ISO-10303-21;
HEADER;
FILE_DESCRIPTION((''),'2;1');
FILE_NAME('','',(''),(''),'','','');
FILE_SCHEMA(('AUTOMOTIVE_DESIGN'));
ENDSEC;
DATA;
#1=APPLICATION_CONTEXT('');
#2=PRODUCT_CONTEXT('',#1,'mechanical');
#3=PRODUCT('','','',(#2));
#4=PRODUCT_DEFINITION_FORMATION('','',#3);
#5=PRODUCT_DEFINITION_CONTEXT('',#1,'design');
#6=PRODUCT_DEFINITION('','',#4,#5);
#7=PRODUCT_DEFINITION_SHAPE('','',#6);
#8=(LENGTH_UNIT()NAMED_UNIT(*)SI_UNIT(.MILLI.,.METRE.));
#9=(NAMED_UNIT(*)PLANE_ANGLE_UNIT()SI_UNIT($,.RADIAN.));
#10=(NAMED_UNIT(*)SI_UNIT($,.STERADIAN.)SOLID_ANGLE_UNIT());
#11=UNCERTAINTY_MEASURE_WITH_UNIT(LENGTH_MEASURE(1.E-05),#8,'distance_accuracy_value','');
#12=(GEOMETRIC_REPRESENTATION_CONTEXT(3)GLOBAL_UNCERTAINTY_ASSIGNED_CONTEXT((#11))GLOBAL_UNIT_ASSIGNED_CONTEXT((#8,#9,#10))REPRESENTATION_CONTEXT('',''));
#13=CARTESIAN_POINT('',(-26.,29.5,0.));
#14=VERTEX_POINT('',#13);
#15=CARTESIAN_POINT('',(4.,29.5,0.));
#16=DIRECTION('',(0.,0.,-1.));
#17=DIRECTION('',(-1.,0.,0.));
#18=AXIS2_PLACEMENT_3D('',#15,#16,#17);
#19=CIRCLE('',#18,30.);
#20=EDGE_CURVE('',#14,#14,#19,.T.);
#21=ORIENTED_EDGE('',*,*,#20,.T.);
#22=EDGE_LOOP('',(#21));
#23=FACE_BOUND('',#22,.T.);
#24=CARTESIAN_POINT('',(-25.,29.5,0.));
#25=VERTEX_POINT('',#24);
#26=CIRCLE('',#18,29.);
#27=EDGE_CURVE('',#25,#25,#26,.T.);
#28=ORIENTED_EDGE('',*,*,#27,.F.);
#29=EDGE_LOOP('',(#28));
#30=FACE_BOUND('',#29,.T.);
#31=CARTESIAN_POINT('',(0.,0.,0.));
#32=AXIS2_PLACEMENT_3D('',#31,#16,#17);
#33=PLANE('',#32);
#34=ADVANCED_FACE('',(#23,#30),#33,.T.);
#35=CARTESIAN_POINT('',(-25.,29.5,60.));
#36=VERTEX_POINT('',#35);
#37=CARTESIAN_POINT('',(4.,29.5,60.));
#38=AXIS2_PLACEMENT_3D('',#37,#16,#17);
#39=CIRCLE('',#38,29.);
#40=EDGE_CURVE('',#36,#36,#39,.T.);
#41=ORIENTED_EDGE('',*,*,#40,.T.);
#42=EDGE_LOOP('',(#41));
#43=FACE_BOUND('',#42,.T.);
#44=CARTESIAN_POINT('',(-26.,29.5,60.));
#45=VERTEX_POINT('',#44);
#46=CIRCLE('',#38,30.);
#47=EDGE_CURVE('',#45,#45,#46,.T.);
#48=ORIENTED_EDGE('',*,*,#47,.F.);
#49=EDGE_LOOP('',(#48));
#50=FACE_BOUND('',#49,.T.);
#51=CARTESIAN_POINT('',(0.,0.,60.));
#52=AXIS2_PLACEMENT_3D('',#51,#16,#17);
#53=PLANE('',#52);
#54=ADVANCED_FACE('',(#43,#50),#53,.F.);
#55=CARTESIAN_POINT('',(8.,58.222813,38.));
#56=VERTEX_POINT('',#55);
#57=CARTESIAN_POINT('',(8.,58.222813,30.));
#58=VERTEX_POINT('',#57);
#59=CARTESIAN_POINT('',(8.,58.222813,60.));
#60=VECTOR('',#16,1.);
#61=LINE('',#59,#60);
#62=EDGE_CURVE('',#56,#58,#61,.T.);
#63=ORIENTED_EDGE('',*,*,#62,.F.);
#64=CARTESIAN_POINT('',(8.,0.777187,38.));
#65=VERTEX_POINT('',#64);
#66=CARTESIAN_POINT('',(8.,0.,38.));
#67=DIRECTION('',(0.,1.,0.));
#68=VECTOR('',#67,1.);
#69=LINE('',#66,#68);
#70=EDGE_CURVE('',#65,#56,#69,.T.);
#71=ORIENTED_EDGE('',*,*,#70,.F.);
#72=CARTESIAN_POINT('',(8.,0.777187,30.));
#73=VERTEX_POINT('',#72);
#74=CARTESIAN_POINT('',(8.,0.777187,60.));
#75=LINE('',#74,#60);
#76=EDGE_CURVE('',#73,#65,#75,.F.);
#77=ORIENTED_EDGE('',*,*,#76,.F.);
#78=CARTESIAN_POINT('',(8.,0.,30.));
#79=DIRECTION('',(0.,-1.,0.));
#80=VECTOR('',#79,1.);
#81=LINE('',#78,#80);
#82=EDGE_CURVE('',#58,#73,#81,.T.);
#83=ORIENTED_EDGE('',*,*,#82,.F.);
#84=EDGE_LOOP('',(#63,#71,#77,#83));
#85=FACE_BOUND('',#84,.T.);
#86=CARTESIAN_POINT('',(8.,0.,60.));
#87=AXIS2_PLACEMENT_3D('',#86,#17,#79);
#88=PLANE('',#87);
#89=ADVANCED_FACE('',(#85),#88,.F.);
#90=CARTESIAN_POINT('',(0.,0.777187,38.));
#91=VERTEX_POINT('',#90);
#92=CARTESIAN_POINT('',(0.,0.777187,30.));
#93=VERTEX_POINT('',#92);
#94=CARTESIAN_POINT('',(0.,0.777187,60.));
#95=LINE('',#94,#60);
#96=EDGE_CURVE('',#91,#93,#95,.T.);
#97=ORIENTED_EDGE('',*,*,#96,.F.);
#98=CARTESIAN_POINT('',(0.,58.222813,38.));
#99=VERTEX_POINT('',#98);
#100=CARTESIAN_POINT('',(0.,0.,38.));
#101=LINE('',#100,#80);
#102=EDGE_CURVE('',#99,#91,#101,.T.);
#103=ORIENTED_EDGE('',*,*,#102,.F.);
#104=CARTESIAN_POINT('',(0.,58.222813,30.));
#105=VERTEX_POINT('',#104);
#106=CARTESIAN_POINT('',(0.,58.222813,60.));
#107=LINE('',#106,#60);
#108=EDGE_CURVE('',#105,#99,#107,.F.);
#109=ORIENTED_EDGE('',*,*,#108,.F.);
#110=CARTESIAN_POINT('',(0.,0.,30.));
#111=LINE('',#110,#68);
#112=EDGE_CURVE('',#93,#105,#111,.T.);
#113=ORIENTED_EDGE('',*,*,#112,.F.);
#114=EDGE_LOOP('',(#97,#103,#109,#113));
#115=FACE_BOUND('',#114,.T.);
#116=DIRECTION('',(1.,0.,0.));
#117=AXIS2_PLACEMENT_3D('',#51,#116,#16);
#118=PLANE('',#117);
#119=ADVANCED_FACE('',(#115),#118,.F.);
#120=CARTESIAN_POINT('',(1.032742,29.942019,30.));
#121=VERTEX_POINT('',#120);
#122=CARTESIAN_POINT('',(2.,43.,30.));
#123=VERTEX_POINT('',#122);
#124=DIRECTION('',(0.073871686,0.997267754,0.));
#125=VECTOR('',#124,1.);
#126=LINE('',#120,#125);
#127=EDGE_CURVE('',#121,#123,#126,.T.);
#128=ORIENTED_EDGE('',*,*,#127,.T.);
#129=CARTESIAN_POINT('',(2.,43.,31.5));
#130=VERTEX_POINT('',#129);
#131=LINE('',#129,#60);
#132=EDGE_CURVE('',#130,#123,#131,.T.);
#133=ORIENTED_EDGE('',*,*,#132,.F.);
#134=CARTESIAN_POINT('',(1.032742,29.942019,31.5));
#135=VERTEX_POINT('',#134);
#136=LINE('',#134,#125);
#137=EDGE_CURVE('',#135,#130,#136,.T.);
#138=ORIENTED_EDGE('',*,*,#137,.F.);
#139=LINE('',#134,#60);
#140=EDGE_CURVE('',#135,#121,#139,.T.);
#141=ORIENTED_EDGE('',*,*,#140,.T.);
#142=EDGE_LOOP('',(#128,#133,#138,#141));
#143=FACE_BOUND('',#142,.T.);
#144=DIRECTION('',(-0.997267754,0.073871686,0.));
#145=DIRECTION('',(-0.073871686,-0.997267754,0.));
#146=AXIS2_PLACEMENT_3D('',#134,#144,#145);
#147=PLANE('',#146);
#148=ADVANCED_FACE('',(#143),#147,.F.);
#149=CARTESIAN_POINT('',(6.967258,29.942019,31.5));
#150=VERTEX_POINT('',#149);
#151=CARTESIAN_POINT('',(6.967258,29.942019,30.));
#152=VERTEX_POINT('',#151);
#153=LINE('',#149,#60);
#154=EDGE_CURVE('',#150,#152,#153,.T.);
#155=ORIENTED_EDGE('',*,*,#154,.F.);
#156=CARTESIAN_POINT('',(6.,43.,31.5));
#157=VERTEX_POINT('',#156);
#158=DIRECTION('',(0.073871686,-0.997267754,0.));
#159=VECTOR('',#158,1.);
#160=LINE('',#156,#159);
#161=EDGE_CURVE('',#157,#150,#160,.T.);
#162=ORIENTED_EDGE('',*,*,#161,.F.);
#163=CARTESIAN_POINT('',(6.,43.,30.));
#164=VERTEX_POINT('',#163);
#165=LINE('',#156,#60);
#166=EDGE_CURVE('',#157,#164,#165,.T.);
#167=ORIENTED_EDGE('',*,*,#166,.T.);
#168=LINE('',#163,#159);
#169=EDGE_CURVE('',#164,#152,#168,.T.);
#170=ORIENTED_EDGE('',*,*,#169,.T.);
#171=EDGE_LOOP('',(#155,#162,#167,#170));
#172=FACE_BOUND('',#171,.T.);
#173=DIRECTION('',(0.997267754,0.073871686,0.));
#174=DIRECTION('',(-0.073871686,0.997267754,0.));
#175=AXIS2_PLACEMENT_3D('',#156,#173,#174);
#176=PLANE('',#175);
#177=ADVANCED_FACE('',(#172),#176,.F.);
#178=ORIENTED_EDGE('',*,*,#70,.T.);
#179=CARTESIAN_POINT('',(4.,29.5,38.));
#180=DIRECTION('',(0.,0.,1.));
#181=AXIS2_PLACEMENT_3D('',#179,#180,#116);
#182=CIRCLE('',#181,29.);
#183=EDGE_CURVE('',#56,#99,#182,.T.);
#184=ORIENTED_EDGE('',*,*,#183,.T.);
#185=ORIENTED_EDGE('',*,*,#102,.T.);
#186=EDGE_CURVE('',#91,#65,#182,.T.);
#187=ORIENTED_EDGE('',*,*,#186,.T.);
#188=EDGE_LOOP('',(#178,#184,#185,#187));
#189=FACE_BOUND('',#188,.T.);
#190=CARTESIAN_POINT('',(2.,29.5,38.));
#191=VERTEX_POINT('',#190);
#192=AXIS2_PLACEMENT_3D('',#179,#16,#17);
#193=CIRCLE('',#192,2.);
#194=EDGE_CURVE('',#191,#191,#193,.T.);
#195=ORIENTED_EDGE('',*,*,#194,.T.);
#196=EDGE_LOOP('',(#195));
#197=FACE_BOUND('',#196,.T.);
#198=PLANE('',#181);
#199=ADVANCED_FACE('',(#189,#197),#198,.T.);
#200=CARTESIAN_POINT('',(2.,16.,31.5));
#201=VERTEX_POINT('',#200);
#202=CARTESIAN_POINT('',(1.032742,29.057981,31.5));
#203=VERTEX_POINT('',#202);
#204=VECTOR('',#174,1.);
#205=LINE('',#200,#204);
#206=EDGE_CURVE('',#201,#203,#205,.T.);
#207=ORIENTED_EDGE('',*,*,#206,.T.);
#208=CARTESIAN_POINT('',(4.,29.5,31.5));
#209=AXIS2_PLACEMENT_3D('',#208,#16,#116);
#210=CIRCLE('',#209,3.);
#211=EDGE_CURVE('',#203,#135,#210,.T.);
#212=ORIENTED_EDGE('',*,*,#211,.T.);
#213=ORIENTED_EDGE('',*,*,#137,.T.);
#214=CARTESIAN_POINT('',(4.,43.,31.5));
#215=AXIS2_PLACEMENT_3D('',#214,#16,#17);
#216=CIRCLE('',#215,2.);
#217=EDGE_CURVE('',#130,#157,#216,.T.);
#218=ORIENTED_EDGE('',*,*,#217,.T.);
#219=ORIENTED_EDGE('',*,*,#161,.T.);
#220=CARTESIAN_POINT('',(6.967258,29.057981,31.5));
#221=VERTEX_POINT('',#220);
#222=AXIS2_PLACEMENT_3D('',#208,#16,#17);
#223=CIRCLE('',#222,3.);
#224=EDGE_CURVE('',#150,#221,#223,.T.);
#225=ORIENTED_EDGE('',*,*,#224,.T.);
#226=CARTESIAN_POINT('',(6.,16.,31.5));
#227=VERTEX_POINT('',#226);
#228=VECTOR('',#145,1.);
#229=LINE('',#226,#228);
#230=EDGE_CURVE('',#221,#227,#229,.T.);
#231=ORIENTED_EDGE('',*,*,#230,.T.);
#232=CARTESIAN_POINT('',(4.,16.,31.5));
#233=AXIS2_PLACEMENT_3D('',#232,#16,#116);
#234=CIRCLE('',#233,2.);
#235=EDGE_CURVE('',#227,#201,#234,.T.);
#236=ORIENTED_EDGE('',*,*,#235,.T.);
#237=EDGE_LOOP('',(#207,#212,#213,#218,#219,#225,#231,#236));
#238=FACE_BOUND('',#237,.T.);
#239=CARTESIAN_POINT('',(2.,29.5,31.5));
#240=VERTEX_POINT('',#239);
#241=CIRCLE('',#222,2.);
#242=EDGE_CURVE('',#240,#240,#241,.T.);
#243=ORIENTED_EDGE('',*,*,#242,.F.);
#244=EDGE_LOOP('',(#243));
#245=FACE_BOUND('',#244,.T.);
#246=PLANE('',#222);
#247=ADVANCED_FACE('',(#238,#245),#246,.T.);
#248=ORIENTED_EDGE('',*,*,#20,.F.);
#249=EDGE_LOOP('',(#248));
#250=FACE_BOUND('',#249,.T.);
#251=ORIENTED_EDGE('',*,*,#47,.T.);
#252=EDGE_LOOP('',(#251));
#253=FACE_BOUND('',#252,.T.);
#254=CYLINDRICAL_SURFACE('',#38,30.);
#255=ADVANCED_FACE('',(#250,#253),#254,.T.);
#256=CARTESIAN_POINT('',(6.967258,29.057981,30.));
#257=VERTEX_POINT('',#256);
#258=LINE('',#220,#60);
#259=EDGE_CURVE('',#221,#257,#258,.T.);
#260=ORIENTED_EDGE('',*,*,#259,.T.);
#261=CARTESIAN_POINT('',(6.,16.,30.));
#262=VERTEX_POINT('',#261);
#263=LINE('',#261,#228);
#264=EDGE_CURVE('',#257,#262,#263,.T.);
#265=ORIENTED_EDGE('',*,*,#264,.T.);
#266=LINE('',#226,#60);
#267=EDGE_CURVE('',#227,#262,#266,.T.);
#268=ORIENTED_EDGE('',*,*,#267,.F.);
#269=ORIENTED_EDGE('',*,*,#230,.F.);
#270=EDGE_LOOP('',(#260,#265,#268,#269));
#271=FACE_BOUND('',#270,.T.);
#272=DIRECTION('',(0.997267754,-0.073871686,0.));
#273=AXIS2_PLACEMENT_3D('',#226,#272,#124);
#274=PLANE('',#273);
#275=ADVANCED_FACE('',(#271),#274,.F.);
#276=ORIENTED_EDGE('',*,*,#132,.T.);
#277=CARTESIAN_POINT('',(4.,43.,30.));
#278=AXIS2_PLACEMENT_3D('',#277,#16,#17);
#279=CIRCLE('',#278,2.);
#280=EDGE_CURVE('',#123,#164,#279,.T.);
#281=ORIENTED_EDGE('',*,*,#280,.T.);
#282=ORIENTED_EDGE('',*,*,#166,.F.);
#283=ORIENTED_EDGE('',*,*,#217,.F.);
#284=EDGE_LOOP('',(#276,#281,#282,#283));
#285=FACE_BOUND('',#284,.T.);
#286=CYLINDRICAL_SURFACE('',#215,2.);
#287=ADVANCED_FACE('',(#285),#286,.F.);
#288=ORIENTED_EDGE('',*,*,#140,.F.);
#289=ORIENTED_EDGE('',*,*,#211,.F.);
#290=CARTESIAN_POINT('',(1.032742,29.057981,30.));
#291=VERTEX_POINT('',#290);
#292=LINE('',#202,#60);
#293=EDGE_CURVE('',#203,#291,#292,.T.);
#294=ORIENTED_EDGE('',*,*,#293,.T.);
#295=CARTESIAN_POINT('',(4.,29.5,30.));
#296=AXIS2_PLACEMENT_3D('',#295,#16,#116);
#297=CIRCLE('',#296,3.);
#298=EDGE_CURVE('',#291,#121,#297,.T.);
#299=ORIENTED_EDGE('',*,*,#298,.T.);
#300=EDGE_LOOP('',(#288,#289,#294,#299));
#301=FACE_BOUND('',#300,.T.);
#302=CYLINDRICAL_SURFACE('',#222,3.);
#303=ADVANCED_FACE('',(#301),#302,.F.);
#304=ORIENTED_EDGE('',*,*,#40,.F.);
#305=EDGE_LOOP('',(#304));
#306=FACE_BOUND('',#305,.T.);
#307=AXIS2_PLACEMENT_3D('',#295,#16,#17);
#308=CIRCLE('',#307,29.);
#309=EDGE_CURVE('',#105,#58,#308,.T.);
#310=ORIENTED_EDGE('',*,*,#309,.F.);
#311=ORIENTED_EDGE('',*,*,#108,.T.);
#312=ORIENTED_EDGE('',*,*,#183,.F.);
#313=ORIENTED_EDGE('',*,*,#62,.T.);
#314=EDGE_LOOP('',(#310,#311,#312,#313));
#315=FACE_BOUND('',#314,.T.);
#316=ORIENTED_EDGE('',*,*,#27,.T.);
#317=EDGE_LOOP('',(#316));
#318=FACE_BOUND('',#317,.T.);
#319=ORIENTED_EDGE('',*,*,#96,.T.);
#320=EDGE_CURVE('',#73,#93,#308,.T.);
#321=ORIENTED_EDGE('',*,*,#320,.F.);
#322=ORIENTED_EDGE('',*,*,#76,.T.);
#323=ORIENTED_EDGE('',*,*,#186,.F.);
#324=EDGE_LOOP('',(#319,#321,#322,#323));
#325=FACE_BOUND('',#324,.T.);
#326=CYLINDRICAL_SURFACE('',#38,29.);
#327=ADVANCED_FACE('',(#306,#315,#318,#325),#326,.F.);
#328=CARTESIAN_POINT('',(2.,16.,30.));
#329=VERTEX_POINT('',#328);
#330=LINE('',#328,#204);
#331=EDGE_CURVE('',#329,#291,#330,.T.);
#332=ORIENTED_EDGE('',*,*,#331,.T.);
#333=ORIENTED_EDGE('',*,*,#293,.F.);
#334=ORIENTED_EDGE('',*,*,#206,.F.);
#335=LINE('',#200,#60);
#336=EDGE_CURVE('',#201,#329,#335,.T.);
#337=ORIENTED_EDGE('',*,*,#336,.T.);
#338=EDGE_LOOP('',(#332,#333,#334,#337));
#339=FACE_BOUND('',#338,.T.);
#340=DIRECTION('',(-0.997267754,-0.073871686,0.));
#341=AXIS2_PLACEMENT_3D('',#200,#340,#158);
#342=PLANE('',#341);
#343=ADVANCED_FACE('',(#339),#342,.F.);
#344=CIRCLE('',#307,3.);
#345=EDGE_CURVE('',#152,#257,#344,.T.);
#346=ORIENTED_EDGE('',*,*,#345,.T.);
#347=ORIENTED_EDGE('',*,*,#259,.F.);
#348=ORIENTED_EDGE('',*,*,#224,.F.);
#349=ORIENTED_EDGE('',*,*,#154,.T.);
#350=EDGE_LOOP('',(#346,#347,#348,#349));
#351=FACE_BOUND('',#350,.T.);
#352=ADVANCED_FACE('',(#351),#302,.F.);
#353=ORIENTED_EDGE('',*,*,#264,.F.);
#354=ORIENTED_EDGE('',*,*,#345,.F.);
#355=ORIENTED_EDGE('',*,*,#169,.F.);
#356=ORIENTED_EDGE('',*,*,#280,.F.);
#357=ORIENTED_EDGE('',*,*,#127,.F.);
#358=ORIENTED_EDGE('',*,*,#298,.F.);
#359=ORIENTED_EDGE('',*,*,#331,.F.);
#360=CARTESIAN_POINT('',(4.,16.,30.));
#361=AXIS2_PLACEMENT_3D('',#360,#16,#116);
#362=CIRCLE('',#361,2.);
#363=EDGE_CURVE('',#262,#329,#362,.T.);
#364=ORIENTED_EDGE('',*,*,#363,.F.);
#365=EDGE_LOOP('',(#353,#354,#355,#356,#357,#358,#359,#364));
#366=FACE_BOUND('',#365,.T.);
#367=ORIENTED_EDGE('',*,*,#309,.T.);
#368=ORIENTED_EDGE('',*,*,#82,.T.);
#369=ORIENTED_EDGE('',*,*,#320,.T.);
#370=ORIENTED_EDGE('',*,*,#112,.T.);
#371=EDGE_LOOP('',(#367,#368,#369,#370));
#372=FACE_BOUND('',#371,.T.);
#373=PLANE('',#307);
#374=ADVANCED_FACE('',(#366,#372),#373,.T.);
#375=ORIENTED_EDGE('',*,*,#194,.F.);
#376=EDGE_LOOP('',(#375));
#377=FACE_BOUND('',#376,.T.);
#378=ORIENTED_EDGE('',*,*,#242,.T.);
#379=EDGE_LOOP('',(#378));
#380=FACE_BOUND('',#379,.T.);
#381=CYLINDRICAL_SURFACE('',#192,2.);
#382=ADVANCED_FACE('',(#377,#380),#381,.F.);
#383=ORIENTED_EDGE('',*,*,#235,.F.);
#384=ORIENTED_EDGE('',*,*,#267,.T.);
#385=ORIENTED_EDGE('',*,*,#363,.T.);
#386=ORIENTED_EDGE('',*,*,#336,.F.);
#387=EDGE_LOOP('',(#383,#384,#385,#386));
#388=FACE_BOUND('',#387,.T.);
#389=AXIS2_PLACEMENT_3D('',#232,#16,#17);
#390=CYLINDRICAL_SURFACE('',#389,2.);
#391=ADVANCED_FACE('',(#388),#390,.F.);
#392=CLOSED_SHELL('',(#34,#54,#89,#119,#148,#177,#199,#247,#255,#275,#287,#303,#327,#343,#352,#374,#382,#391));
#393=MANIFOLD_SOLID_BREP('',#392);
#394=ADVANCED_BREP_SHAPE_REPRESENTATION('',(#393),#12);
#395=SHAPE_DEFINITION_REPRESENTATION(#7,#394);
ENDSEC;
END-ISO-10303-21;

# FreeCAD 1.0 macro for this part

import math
import FreeCAD as App
import Part
import Sketcher
from FreeCAD import Vector


def add_polygon(sketch, points):
    """Adds a closed chain of lines whose ends are joined by coincident constraints."""
    first, n = sketch.GeometryCount, len(points)
    for a, b in zip(points, points[1:] + points[:1]):
        sketch.addGeometry(Part.LineSegment(App.Vector(*a, 0), App.Vector(*b, 0)), False)
    for i in range(n):
        sketch.addConstraint(Sketcher.Constraint("Coincident", first + i, 2, first + (i + 1) % n, 1))

doc = App.newDocument("Part")
body = doc.addObject("PartDesign::Body", "Body")

# Sketch on XY plane
sketch1 = body.newObject("Sketcher::SketchObject", "Sketch")
sketch1.AttachmentSupport = (doc.getObject("XY_Plane"), [""])
sketch1.MapMode = "FlatFace"
add_polygon(sketch1, [(0, 59), (0, 0), (8, 0), (8, 59)])  # lines 0-3
sketch1.addConstraint(Sketcher.Constraint("Vertical", 0))
sketch1.addConstraint(Sketcher.Constraint("Horizontal", 1))
sketch1.addConstraint(Sketcher.Constraint("Vertical", 2))
sketch1.addConstraint(Sketcher.Constraint("Horizontal", 3))
sketch1.addConstraint(Sketcher.Constraint("Coincident", 0, 2, -1, 1))
sketch1.addConstraint(Sketcher.Constraint("DistanceX", 1, 1, 1, 2, 8.0))
sketch1.addConstraint(Sketcher.Constraint("DistanceY", 0, 2, 0, 1, 59.0))
pad1 = body.newObject("PartDesign::Pad", "Pad")
pad1.Profile = sketch1
pad1.Length = 60

# Sketch on XY plane
sketch2 = body.newObject("Sketcher::SketchObject", "Sketch001")
sketch2.AttachmentSupport = (doc.getObject("XY_Plane"), [""])
sketch2.MapMode = "FlatFace"
sketch2.addGeometry(Part.Circle(Vector(4, 30, 0), Vector(0, 0, 1), 30), False)
sketch2.addGeometry(Part.Circle(Vector(4, 30, 0), Vector(0, 0, 1), 29), False)
sketch2.addConstraint(Sketcher.Constraint("Coincident", 1, 3, 0, 3))
sketch2.addConstraint(Sketcher.Constraint("Diameter", 0, 60.0))
sketch2.addConstraint(Sketcher.Constraint("Diameter", 1, 58.0))
sketch2.addConstraint(Sketcher.Constraint("DistanceX", -1, 1, 0, 3, 4.0))
sketch2.addConstraint(Sketcher.Constraint("DistanceY", -1, 1, 0, 3, 29.5))
pad2 = body.newObject("PartDesign::Pad", "Pad001")
pad2.Profile = sketch2
pad2.Length = 60

# Sketch on XY plane
sketch3 = body.newObject("Sketcher::SketchObject", "Sketch002")
sketch3.AttachmentSupport = (doc.getObject("XY_Plane"), [""])
sketch3.MapMode = "FlatFace"
sketch3.addGeometry(Part.Circle(Vector(4, 30, 0), Vector(0, 0, 1), 29), False)
sketch3.addConstraint(Sketcher.Constraint("Diameter", 0, 58.0))
sketch3.addConstraint(Sketcher.Constraint("DistanceX", -1, 1, 0, 3, 4.0))
sketch3.addConstraint(Sketcher.Constraint("DistanceY", -1, 1, 0, 3, 29.5))
pocket1 = body.newObject("PartDesign::Pocket", "Pocket")
pocket1.Profile = sketch3
pocket1.Length = 30
pocket1.Reversed = True

# Sketch on XY plane
sketch4 = body.newObject("Sketcher::SketchObject", "Sketch003")
sketch4.AttachmentSupport = (doc.getObject("XY_Plane"), [""])
sketch4.MapMode = "FlatFace"
sketch4.AttachmentOffset = App.Placement(Vector(0, 0, 30), App.Rotation())
sketch4.addGeometry(Part.LineSegment(Vector(6, 43, 0), Vector(7, 29.9, 0)), False)
sketch4.addGeometry(Part.ArcOfCircle(Part.Circle(Vector(4, 29.5, 0), Vector(0, 0, 1), 3), math.radians(-8.47), math.radians(8.47)), False)
sketch4.addGeometry(Part.LineSegment(Vector(7, 29.1, 0), Vector(6, 16, 0)), False)
sketch4.addGeometry(Part.ArcOfCircle(Part.Circle(Vector(4, 16, 0), Vector(0, 0, 1), 2), math.radians(180), math.radians(360)), False)
sketch4.addGeometry(Part.LineSegment(Vector(2, 16, 0), Vector(1, 29.1, 0)), False)
sketch4.addGeometry(Part.ArcOfCircle(Part.Circle(Vector(4, 29.5, 0), Vector(0, 0, 1), 3), math.radians(171.53), math.radians(188.47)), False)
sketch4.addGeometry(Part.LineSegment(Vector(1, 29.9, 0), Vector(2, 43, 0)), False)
sketch4.addGeometry(Part.ArcOfCircle(Part.Circle(Vector(4, 43, 0), Vector(0, 0, 1), 2), math.radians(0), math.radians(180)), False)
sketch4.addConstraint(Sketcher.Constraint("Coincident", 0, 2, 1, 2))
sketch4.addConstraint(Sketcher.Constraint("Coincident", 1, 1, 2, 1))
sketch4.addConstraint(Sketcher.Constraint("Coincident", 2, 2, 3, 2))
sketch4.addConstraint(Sketcher.Constraint("Coincident", 3, 1, 4, 1))
sketch4.addConstraint(Sketcher.Constraint("Coincident", 4, 2, 5, 2))
sketch4.addConstraint(Sketcher.Constraint("Coincident", 5, 1, 6, 1))
sketch4.addConstraint(Sketcher.Constraint("Coincident", 6, 2, 7, 2))
sketch4.addConstraint(Sketcher.Constraint("Coincident", 7, 1, 0, 1))
sketch4.addConstraint(Sketcher.Constraint("Coincident", 5, 3, 1, 3))
sketch4.addConstraint(Sketcher.Constraint("Equal", 1, 5))
sketch4.addConstraint(Sketcher.Constraint("Equal", 3, 7))
sketch4.addConstraint(Sketcher.Constraint("Parallel", 0, 4))
sketch4.addConstraint(Sketcher.Constraint("Parallel", 2, 6))
sketch4.addConstraint(Sketcher.Constraint("Horizontal", 3, 3, 2, 2))
sketch4.addConstraint(Sketcher.Constraint("Horizontal", 2, 2, 3, 1))
sketch4.addConstraint(Sketcher.Constraint("Horizontal", 1, 1, 4, 2))
sketch4.addConstraint(Sketcher.Constraint("Horizontal", 0, 2, 5, 1))
sketch4.addConstraint(Sketcher.Constraint("Horizontal", 7, 3, 6, 2))
sketch4.addConstraint(Sketcher.Constraint("Horizontal", 6, 2, 7, 1))
sketch4.addConstraint(Sketcher.Constraint("Vertical", 1, 3, 3, 3))
sketch4.addConstraint(Sketcher.Constraint("Vertical", 0, 2, 1, 1))
sketch4.addConstraint(Sketcher.Constraint("Radius", 1, 3.0))
sketch4.addConstraint(Sketcher.Constraint("Radius", 3, 2.0))
sketch4.addConstraint(Sketcher.Constraint("DistanceX", -1, 1, 1, 3, 4.0))
sketch4.addConstraint(Sketcher.Constraint("DistanceY", -1, 1, 3, 3, 16.0))
sketch4.addConstraint(Sketcher.Constraint("DistanceY", -1, 1, 7, 3, 43.0))
sketch4.addConstraint(Sketcher.Constraint("DistanceY", -1, 1, 0, 2, 29.942019))
pocket2 = body.newObject("PartDesign::Pocket", "Pocket001")
pocket2.Profile = sketch4
pocket2.Length = 1.5
pocket2.Reversed = True

# Sketch on XY plane
sketch5 = body.newObject("Sketcher::SketchObject", "Sketch004")
sketch5.AttachmentSupport = (doc.getObject("XY_Plane"), [""])
sketch5.MapMode = "FlatFace"
sketch5.AttachmentOffset = App.Placement(Vector(0, 0, 60), App.Rotation())
sketch5.addGeometry(Part.Circle(Vector(4, 30, 0), Vector(0, 0, 1), 29), False)
sketch5.addConstraint(Sketcher.Constraint("Diameter", 0, 58.0))
sketch5.addConstraint(Sketcher.Constraint("DistanceX", -1, 1, 0, 3, 4.0))
sketch5.addConstraint(Sketcher.Constraint("DistanceY", -1, 1, 0, 3, 29.5))
pocket3 = body.newObject("PartDesign::Pocket", "Pocket002")
pocket3.Profile = sketch5
pocket3.Length = 22

# Sketch on XY plane
sketch6 = body.newObject("Sketcher::SketchObject", "Sketch005")
sketch6.AttachmentSupport = (doc.getObject("XY_Plane"), [""])
sketch6.MapMode = "FlatFace"
sketch6.AttachmentOffset = App.Placement(Vector(0, 0, 31.5), App.Rotation())
sketch6.addGeometry(Part.Circle(Vector(4, 29.5, 0), Vector(0, 0, 1), 2), False)
sketch6.addConstraint(Sketcher.Constraint("Diameter", 0, 4.0))
sketch6.addConstraint(Sketcher.Constraint("DistanceX", -1, 1, 0, 3, 4.0))
sketch6.addConstraint(Sketcher.Constraint("DistanceY", -1, 1, 0, 3, 29.5))
pocket4 = body.newObject("PartDesign::Pocket", "Pocket003")
pocket4.Profile = sketch6
pocket4.Length = 6.5
pocket4.Reversed = True

doc.recompute()
